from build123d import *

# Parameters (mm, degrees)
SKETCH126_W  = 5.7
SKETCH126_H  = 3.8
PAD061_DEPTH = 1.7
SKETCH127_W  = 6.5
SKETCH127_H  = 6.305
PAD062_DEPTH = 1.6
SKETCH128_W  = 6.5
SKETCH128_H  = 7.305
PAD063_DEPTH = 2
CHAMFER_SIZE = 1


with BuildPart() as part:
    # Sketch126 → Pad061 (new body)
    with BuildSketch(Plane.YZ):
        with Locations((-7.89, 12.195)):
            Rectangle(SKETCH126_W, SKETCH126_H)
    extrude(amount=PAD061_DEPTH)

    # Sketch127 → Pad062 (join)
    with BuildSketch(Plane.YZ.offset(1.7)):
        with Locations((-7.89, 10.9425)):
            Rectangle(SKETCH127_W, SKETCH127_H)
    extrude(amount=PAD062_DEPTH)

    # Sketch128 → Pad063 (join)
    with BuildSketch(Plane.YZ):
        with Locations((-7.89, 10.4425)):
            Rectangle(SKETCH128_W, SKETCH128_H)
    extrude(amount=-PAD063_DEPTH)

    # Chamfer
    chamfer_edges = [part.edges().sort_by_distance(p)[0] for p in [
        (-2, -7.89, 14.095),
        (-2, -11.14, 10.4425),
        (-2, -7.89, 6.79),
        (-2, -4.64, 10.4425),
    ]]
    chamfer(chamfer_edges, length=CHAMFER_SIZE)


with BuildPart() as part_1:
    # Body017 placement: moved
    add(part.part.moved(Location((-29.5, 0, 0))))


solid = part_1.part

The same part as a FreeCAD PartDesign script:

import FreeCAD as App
import Part
import Sketcher
Q = App.Units.Quantity


def edges_at(feature, points):
    """Names of the edges that pass closest to the given points."""
    edges = feature.Shape.Edges
    near = lambda p: min(range(len(edges)), key=lambda i: edges[i].distToShape(Part.Vertex(*p))[0])
    return sorted({f"Edge{near(p) + 1}" for p in points})


def add_polygon(sketch, points):
    """Adds a closed chain of lines whose ends are joined by coincident constraints."""
    first, n = sketch.GeometryCount, len(points)
    for a, b in zip(points, points[1:] + points[:1]):
        sketch.addGeometry(Part.LineSegment(App.Vector(*a, 0), App.Vector(*b, 0)), False)
    for i in range(n):
        sketch.addConstraint(Sketcher.Constraint("Coincident", first + i, 2, first + (i + 1) % n, 1))

doc = App.newDocument("Part")
body = doc.addObject("PartDesign::Body", "Body")

sketch1 = body.newObject("Sketcher::SketchObject", "Sketch")
sketch1.AttachmentSupport = (doc.getObject("YZ_Plane"), [""])
sketch1.MapMode = "FlatFace"
add_polygon(sketch1, [(-10.74, 14.095), (-10.74, 10.295), (-5.04, 10.295), (-5.04, 14.095)])
sketch1.addConstraint(Sketcher.Constraint("Vertical", 0))
sketch1.addConstraint(Sketcher.Constraint("Horizontal", 1))
sketch1.addConstraint(Sketcher.Constraint("Vertical", 2))
sketch1.addConstraint(Sketcher.Constraint("Horizontal", 3))
sketch1.addConstraint(Sketcher.Constraint("DistanceX", 1, 1, 1, 2, Q("5.7 mm")))
sketch1.addConstraint(Sketcher.Constraint("DistanceY", 0, 2, 0, 1, Q("3.8 mm")))
sketch1.addConstraint(Sketcher.Constraint("DistanceX", 0, 2, -1, 1, Q("10.74 mm")))
sketch1.addConstraint(Sketcher.Constraint("DistanceY", -1, 1, 0, 2, Q("10.295 mm")))
pad1 = body.newObject("PartDesign::Pad", "Pad")
pad1.Profile = sketch1
pad1.Length = 1.7

sketch2 = body.newObject("Sketcher::SketchObject", "Sketch001")
sketch2.AttachmentSupport = (doc.getObject("YZ_Plane"), [""])
sketch2.MapMode = "FlatFace"
sketch2.AttachmentOffset = App.Placement(App.Vector(0, 0, 1.7), App.Rotation())
add_polygon(sketch2, [(-11.14, 14.095), (-11.14, 7.79), (-4.64, 7.79), (-4.64, 14.095)])
sketch2.addConstraint(Sketcher.Constraint("Vertical", 0))
sketch2.addConstraint(Sketcher.Constraint("Horizontal", 1))
sketch2.addConstraint(Sketcher.Constraint("Vertical", 2))
sketch2.addConstraint(Sketcher.Constraint("Horizontal", 3))
sketch2.addConstraint(Sketcher.Constraint("DistanceX", 1, 1, 1, 2, Q("6.5 mm")))
sketch2.addConstraint(Sketcher.Constraint("DistanceY", 0, 2, 0, 1, Q("6.305 mm")))
sketch2.addConstraint(Sketcher.Constraint("DistanceX", 0, 2, -1, 1, Q("11.14 mm")))
sketch2.addConstraint(Sketcher.Constraint("DistanceY", -1, 1, 0, 2, Q("7.79 mm")))
pad2 = body.newObject("PartDesign::Pad", "Pad001")
pad2.Profile = sketch2
pad2.Length = 1.6

sketch3 = body.newObject("Sketcher::SketchObject", "Sketch002")
sketch3.AttachmentSupport = (doc.getObject("YZ_Plane"), [""])
sketch3.MapMode = "FlatFace"
add_polygon(sketch3, [(-11.14, 14.095), (-11.14, 6.79), (-4.64, 6.79), (-4.64, 14.095)])
sketch3.addConstraint(Sketcher.Constraint("Vertical", 0))
sketch3.addConstraint(Sketcher.Constraint("Horizontal", 1))
sketch3.addConstraint(Sketcher.Constraint("Vertical", 2))
sketch3.addConstraint(Sketcher.Constraint("Horizontal", 3))
sketch3.addConstraint(Sketcher.Constraint("DistanceX", 1, 1, 1, 2, Q("6.5 mm")))
sketch3.addConstraint(Sketcher.Constraint("DistanceY", 0, 2, 0, 1, Q("7.305 mm")))
sketch3.addConstraint(Sketcher.Constraint("DistanceX", 0, 2, -1, 1, Q("11.14 mm")))
sketch3.addConstraint(Sketcher.Constraint("DistanceY", -1, 1, 0, 2, Q("6.79 mm")))
pad3 = body.newObject("PartDesign::Pad", "Pad002")
pad3.Profile = sketch3
pad3.Length = 2
pad3.Reversed = True
doc.recompute()

chamfer = body.newObject("PartDesign::Chamfer", "Chamfer")
chamfer.Base = (pad3, edges_at(pad3, [
    (-2, -7.89, 14.095),
    (-2, -11.14, 10.443),
    (-2, -7.89, 6.79),
    (-2, -4.64, 10.443),
]))
chamfer.Size = 1
body2 = doc.addObject("PartDesign::Body", "Body001")
doc.recompute()

body.Placement = App.Placement(App.Vector(-29.5, 0, 0), App.Rotation(App.Vector(0, 0, 1), 0))
boolean = body2.newObject("PartDesign::Boolean", "Boolean")
boolean.Type = "Fuse"
boolean.addObjects([body])

doc.recompute()
